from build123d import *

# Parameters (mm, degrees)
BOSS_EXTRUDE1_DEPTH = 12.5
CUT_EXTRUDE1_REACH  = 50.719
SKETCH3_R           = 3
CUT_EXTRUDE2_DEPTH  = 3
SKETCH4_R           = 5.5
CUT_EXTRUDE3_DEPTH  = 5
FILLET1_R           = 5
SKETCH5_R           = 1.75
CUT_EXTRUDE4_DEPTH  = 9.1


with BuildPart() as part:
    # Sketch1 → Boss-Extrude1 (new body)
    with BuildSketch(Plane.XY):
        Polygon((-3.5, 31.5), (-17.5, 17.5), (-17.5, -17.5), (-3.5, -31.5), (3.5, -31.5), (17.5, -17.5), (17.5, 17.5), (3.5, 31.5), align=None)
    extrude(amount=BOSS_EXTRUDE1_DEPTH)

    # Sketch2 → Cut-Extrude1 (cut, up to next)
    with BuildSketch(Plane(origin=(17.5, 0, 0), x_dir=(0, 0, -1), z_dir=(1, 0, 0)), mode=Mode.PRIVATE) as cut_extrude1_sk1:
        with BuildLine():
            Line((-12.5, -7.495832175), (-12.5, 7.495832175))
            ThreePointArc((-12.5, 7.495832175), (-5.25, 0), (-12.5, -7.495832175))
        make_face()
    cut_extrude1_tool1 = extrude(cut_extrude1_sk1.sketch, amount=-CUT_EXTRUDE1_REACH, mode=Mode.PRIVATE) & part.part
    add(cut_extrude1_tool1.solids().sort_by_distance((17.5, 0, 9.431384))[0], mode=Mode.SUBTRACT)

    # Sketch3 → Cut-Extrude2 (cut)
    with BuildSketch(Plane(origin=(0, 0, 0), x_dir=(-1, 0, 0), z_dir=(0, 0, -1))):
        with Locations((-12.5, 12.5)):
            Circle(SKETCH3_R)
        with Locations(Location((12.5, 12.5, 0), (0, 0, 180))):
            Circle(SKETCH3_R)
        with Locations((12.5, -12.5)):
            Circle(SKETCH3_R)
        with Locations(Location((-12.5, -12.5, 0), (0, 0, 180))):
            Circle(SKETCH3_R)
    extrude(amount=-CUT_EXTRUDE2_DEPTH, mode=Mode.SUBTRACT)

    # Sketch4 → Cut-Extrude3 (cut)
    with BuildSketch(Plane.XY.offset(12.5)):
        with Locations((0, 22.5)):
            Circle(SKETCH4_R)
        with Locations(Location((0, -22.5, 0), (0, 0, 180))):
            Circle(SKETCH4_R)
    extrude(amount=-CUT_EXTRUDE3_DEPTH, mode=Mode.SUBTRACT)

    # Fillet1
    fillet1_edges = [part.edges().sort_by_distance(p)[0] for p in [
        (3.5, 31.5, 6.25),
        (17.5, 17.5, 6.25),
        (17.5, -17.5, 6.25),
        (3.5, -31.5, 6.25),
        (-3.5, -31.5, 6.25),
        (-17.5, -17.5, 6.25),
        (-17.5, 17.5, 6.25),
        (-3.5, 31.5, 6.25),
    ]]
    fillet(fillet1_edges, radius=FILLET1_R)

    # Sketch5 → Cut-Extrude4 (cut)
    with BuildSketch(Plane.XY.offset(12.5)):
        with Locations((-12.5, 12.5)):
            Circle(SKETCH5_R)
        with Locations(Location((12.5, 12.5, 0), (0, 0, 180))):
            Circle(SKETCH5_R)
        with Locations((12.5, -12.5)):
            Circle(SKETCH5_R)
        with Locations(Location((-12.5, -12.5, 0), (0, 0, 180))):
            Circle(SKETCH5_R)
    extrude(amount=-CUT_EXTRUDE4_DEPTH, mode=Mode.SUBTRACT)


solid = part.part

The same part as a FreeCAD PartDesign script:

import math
import FreeCAD as App
import Part
import Sketcher
from FreeCAD import Vector


def edges_at(feature, points):
    """Names of the edges that pass closest to the given points."""
    edges = feature.Shape.Edges
    near = lambda p: min(range(len(edges)), key=lambda i: edges[i].distToShape(Part.Vertex(*p))[0])
    return sorted({f"Edge{near(p) + 1}" for p in points})


def add_polygon(sketch, points):
    """Adds a closed chain of lines whose ends are joined by coincident constraints."""
    first, n = sketch.GeometryCount, len(points)
    for a, b in zip(points, points[1:] + points[:1]):
        sketch.addGeometry(Part.LineSegment(App.Vector(*a, 0), App.Vector(*b, 0)), False)
    for i in range(n):
        sketch.addConstraint(Sketcher.Constraint("Coincident", first + i, 2, first + (i + 1) % n, 1))

doc = App.newDocument("Part")
body = doc.addObject("PartDesign::Body", "Body")

sketch1 = body.newObject("Sketcher::SketchObject", "Sketch")
sketch1.AttachmentSupport = (doc.getObject("XY_Plane"), [""])
sketch1.MapMode = "FlatFace"
add_polygon(sketch1, [(-4, 32), (-18, 18), (-18, -18), (-4, -32), (4, -32), (18, -18), (18, 18), (4, 32)])
sketch1.addConstraint([
    Sketcher.Constraint("Vertical", 1),
    Sketcher.Constraint("Horizontal", 3),
    Sketcher.Constraint("Vertical", 5),
    Sketcher.Constraint("Horizontal", 7),
    Sketcher.Constraint("Symmetric", 0, 2, 4, 2, -1, 1),
    Sketcher.Constraint("Symmetric", 2, 2, 6, 2, -1, 1),
    Sketcher.Constraint("Perpendicular", 0, 2),
    Sketcher.Constraint("Perpendicular", 2, 4),
    Sketcher.Constraint("Perpendicular", 4, 6),
    Sketcher.Constraint("Horizontal", 1, 2, 4, 2),
    Sketcher.Constraint("Vertical", 3, 2, 6, 2),
    Sketcher.Constraint("DistanceX", 3, 1, 3, 2, 7.0),
    Sketcher.Constraint("DistanceY", 1, 2, 1, 1, 35.0),
    Sketcher.Constraint("DistanceX", 1, 2, 2, 2, 14.0),
])
pad1 = body.newObject("PartDesign::Pad", "Pad")
pad1.Profile = sketch1
pad1.Length = 12.5

sketch2 = body.newObject("Sketcher::SketchObject", "Sketch001")
sketch2.AttachmentSupport = (doc.getObject("YZ_Plane"), [""])
sketch2.MapMode = "FlatFace"
sketch2.AttachmentOffset = App.Placement(Vector(0, 0, 17.5), App.Rotation())
sketch2.addGeometry([
    Part.LineSegment(Vector(7, 12, 0), Vector(-7, 12, 0)),
    Part.ArcOfCircle(Part.Circle(Vector(0, 13, 0), Vector(0, 0, 1), 8), math.radians(-178), math.radians(-2)),
], False)
sketch2.addConstraint([
    Sketcher.Constraint("Coincident", 0, 1, 1, 2),
    Sketcher.Constraint("Coincident", 1, 1, 0, 2),
    Sketcher.Constraint("Horizontal", 0),
    Sketcher.Constraint("PointOnObject", 1, 3, -2),
    Sketcher.Constraint("Radius", 1, 7.5),
    Sketcher.Constraint("DistanceY", -1, 1, 0, 1, 12.5),
    Sketcher.Constraint("DistanceY", -1, 1, 1, 3, 12.75),
])
pocket1 = body.newObject("PartDesign::Pocket", "Pocket")
pocket1.Profile = sketch2
pocket1.Type = "UpToFirst"

sketch3 = body.newObject("Sketcher::SketchObject", "Sketch002")
sketch3.AttachmentSupport = (doc.getObject("XY_Plane"), [""])
sketch3.MapMode = "FlatFace"
sketch3.addGeometry([
    Part.Circle(Vector(12.5, 12.5, 0), Vector(0, 0, 1), 3),
    Part.Circle(Vector(-12.5, 12.5, 0), Vector(0, 0, 1), 3),
    Part.Circle(Vector(-12.5, -12.5, 0), Vector(0, 0, 1), 3),
    Part.Circle(Vector(12.5, -12.5, 0), Vector(0, 0, 1), 3),
], False)
sketch3.addConstraint([
    Sketcher.Constraint("Equal", 0, 1),
    Sketcher.Constraint("Equal", 1, 2),
    Sketcher.Constraint("Equal", 2, 3),
    Sketcher.Constraint("Symmetric", 0, 3, 2, 3, -1, 1),
    Sketcher.Constraint("Symmetric", 1, 3, 3, 3, -1, 1),
    Sketcher.Constraint("Symmetric", 0, 3, 1, 3, -2),
    Sketcher.Constraint("Diameter", 0, 6.0),
    Sketcher.Constraint("DistanceX", 1, 3, 0, 3, 25.0),
    Sketcher.Constraint("DistanceY", 2, 3, 1, 3, 25.0),
])
pocket2 = body.newObject("PartDesign::Pocket", "Pocket001")
pocket2.Profile = sketch3
pocket2.Length = 3
pocket2.Reversed = True

sketch4 = body.newObject("Sketcher::SketchObject", "Sketch003")
sketch4.AttachmentSupport = (doc.getObject("XY_Plane"), [""])
sketch4.MapMode = "FlatFace"
sketch4.AttachmentOffset = App.Placement(Vector(0, 0, 12.5), App.Rotation())
sketch4.addGeometry([
    Part.Circle(Vector(0, 22, 0), Vector(0, 0, 1), 6),
    Part.Circle(Vector(0, -22, 0), Vector(0, 0, 1), 6),
], False)
sketch4.addConstraint([
    Sketcher.Constraint("Equal", 0, 1),
    Sketcher.Constraint("Symmetric", 0, 3, 1, 3, -1, 1),
    Sketcher.Constraint("PointOnObject", 0, 3, -2),
    Sketcher.Constraint("Diameter", 0, 11.0),
    Sketcher.Constraint("DistanceY", 1, 3, 0, 3, 45.0),
])
pocket3 = body.newObject("PartDesign::Pocket", "Pocket002")
pocket3.Profile = sketch4
pocket3.Length = 5
doc.recompute()

fillet = body.newObject("PartDesign::Fillet", "Fillet")
fillet.Base = (pocket3, edges_at(pocket3, [
    (3.5, 31.5, 6.25),
    (17.5, 17.5, 6.25),
    (17.5, -17.5, 6.25),
    (3.5, -31.5, 6.25),
    (-3.5, -31.5, 6.25),
    (-17.5, -17.5, 6.25),
    (-17.5, 17.5, 6.25),
    (-3.5, 31.5, 6.25),
]))
fillet.Radius = 5

sketch5 = body.newObject("Sketcher::SketchObject", "Sketch004")
sketch5.AttachmentSupport = (doc.getObject("XY_Plane"), [""])
sketch5.MapMode = "FlatFace"
sketch5.AttachmentOffset = App.Placement(Vector(0, 0, 12.5), App.Rotation())
sketch5.addGeometry([
    Part.Circle(Vector(-12.5, 12.5, 0), Vector(0, 0, 1), 1.8),
    Part.Circle(Vector(12.5, 12.5, 0), Vector(0, 0, 1), 1.8),
    Part.Circle(Vector(12.5, -12.5, 0), Vector(0, 0, 1), 1.8),
    Part.Circle(Vector(-12.5, -12.5, 0), Vector(0, 0, 1), 1.8),
], False)
sketch5.addConstraint([
    Sketcher.Constraint("Equal", 0, 1),
    Sketcher.Constraint("Equal", 1, 2),
    Sketcher.Constraint("Equal", 2, 3),
    Sketcher.Constraint("Symmetric", 0, 3, 2, 3, -1, 1),
    Sketcher.Constraint("Symmetric", 1, 3, 3, 3, -1, 1),
    Sketcher.Constraint("Symmetric", 0, 3, 1, 3, -2),
    Sketcher.Constraint("Diameter", 0, 3.5),
    Sketcher.Constraint("DistanceX", 0, 3, 1, 3, 25.0),
    Sketcher.Constraint("DistanceY", 2, 3, 1, 3, 25.0),
])
pocket4 = body.newObject("PartDesign::Pocket", "Pocket003")
pocket4.Profile = sketch5
pocket4.Length = 9.1

doc.recompute()
